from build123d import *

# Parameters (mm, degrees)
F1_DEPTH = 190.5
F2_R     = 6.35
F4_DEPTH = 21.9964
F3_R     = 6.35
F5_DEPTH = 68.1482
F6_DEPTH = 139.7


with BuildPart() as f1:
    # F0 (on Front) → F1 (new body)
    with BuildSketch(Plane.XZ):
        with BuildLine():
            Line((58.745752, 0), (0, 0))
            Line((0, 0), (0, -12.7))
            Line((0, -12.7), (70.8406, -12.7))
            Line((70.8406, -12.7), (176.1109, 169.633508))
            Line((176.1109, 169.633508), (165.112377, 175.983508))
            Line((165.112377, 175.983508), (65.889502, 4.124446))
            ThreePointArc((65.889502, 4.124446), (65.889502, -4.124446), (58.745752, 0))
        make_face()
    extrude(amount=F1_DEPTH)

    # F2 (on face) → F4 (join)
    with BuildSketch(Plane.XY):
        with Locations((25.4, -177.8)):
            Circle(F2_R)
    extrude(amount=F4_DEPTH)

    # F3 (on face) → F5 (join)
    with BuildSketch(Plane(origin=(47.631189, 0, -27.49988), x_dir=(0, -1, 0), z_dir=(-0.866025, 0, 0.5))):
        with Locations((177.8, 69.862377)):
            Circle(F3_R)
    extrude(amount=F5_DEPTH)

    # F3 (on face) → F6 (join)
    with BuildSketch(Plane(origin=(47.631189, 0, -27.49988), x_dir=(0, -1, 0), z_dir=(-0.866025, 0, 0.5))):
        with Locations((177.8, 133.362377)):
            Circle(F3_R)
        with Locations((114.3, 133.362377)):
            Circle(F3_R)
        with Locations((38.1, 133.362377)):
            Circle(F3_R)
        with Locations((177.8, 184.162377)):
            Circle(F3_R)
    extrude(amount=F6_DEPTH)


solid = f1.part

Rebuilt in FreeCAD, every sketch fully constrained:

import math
import FreeCAD as App
import Part
import Sketcher

V = App.Vector
Q = App.Units.Quantity

doc = App.newDocument("Part")
body = doc.addObject("PartDesign::Body", "Body")

# Sketch on XZ plane
sketch1 = body.newObject("Sketcher::SketchObject", "Sketch")
sketch1.AttachmentSupport = (doc.getObject("XZ_Plane"), [""])
sketch1.MapMode = "FlatFace"
sketch1.addGeometry([
    Part.LineSegment(V(58.745752, 0, 0), V(0, 0, 0)),  # 0
    Part.LineSegment(V(0, 0, 0), V(0, -12.7, 0)),  # 1
    Part.LineSegment(V(0, -12.7, 0), V(70.8406, -12.7, 0)),  # 2
    Part.LineSegment(V(70.8406, -12.7, 0), V(176.1109, 169.633508, 0)),  # 3
    Part.LineSegment(V(176.1109, 169.633508, 0), V(165.112377, 175.983508, 0)),  # 4
    Part.LineSegment(V(165.112377, 175.983508, 0), V(65.889502, 4.124446, 0)),  # 5
    Part.ArcOfCircle(Part.Circle(V(63.508252, 0, 0), V(0, 0, 1), 4.7625), math.radians(180), math.radians(420)),  # 6
], False)
sketch1.addConstraint([
    Sketcher.Constraint("Coincident", 0, 2, 1, 1),
    Sketcher.Constraint("Coincident", 1, 2, 2, 1),
    Sketcher.Constraint("Coincident", 2, 2, 3, 1),
    Sketcher.Constraint("Coincident", 3, 2, 4, 1),
    Sketcher.Constraint("Coincident", 4, 2, 5, 1),
    Sketcher.Constraint("Coincident", 5, 2, 6, 2),
    Sketcher.Constraint("Coincident", 6, 1, 0, 1),
    Sketcher.Constraint("Horizontal", 0),
    Sketcher.Constraint("Vertical", 1),
    Sketcher.Constraint("Horizontal", 2),
    Sketcher.Constraint("Coincident", 0, 2, -1, 1),
    Sketcher.Constraint("PointOnObject", 6, 3, -1),
    Sketcher.Constraint("Perpendicular", 3, 4),
    Sketcher.Constraint("Perpendicular", 4, 5),
    Sketcher.Constraint("DistanceY", 1, 2, 1, 1, Q("0.5 in")),
    Sketcher.Constraint("Angle", 3, Q("60 deg")),
    Sketcher.Constraint("Radius", 6, Q("0.1875 in")),
    Sketcher.Constraint("Distance", 4, Q("0.5 in")),
    Sketcher.Constraint("DistanceX", 2, 1, 2, 2, Q("2.789 in")),
    Sketcher.Constraint("Distance", 3, Q("8.289 in")),
    Sketcher.Constraint("DistanceX", 6, 3, 5, 2, Q("0.09375 in")),
])
pad1 = body.newObject("PartDesign::Pad", "Pad")
pad1.Profile = sketch1
pad1.Length = Q("7.5 in")

# Sketch on XY plane
sketch2 = body.newObject("Sketcher::SketchObject", "Sketch001")
sketch2.AttachmentSupport = (doc.getObject("XY_Plane"), [""])
sketch2.MapMode = "FlatFace"
sketch2.addGeometry(Part.Circle(V(25.4, -177.8, 0), V(0, 0, 1), 6.35), False)
sketch2.addConstraint([
    Sketcher.Constraint("Diameter", 0, Q("0.5 in")),
    Sketcher.Constraint("DistanceX", -1, 1, 0, 3, Q("1 in")),
    Sketcher.Constraint("DistanceY", 0, 3, -1, 1, Q("7 in")),
])
pad2 = body.newObject("PartDesign::Pad", "Pad001")
pad2.Profile = sketch2
pad2.Length = Q("0.866 in")

# Sketch on an angled plane
sketch3 = body.newObject("Sketcher::SketchObject", "Sketch002")
sketch3.Placement = App.Placement(V(47.631189, 0, -27.49988), App.Rotation(V(0, -1, 0), V(0.500000175, 0, 0.866025303), V(-0.866025303, 0, 0.500000175), "ZXY"))
sketch3.addGeometry(Part.Circle(V(177.8, 69.862377, 0), V(0, 0, 1), 6.35), False)
sketch3.addConstraint([
    Sketcher.Constraint("Diameter", 0, Q("0.5 in")),
    Sketcher.Constraint("DistanceX", -1, 1, 0, 3, Q("7 in")),
    Sketcher.Constraint("DistanceY", -1, 1, 0, 3, 69.862377),
])
pad3 = body.newObject("PartDesign::Pad", "Pad002")
pad3.Profile = sketch3
pad3.Length = Q("2.683 in")

# Sketch on an angled plane
sketch4 = body.newObject("Sketcher::SketchObject", "Sketch003")
sketch4.Placement = App.Placement(V(47.631189, 0, -27.49988), App.Rotation(V(0, -1, 0), V(0.500000175, 0, 0.866025303), V(-0.866025303, 0, 0.500000175), "ZXY"))
sketch4.addGeometry([
    Part.Circle(V(177.8, 133.362377, 0), V(0, 0, 1), 6.35),
    Part.Circle(V(114.3, 133.362377, 0), V(0, 0, 1), 6.35),
    Part.Circle(V(38.1, 133.362377, 0), V(0, 0, 1), 6.35),
    Part.Circle(V(177.8, 184.162377, 0), V(0, 0, 1), 6.35),
], False)
sketch4.addConstraint([
    Sketcher.Constraint("Equal", 0, 1),
    Sketcher.Constraint("Equal", 1, 2),
    Sketcher.Constraint("Equal", 2, 3),
    Sketcher.Constraint("Horizontal", 0, 3, 1, 3),
    Sketcher.Constraint("Horizontal", 1, 3, 2, 3),
    Sketcher.Constraint("Vertical", 0, 3, 3, 3),
    Sketcher.Constraint("Diameter", 0, Q("0.5 in")),
    Sketcher.Constraint("DistanceX", -1, 1, 0, 3, Q("7 in")),
    Sketcher.Constraint("DistanceX", 2, 3, 1, 3, Q("3 in")),
    Sketcher.Constraint("DistanceY", 0, 3, 3, 3, Q("2 in")),
    Sketcher.Constraint("DistanceX", -1, 1, 1, 3, Q("4.5 in")),
    Sketcher.Constraint("DistanceY", -1, 1, 0, 3, 133.362377),
])
pad4 = body.newObject("PartDesign::Pad", "Pad003")
pad4.Profile = sketch4
pad4.Length = Q("5.5 in")

doc.recompute()
